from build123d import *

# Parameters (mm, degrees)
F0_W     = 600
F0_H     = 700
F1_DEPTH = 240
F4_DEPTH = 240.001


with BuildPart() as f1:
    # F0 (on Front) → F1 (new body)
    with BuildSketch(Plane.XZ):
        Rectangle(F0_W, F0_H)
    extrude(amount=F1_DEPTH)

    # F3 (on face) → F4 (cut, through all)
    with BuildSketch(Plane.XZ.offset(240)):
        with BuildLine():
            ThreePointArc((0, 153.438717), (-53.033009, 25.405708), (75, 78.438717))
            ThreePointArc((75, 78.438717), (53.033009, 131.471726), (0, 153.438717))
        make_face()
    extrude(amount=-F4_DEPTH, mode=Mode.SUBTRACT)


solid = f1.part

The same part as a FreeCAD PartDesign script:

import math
import FreeCAD as App
import Part
import Sketcher
from FreeCAD import Vector

doc = App.newDocument("Part")
params = doc.addObject("Spreadsheet::Sheet", "Params")
for row, (alias, value) in enumerate([
    ("sketch1_width", "600 mm"),
    ("sketch1_height", "700 mm"),
    ("pad1_length", "240 mm"),
    ("sketch2_radius", "75 mm"),
], start=1):
    params.set(f"A{row}", alias)
    params.set(f"B{row}", "=" + value)
    params.setAlias(f"B{row}", alias)

body = doc.addObject("PartDesign::Body", "Body")

# Sketch on XZ plane
sketch1 = body.newObject("Sketcher::SketchObject", "Sketch")
sketch1.AttachmentSupport = (doc.getObject("XZ_Plane"), [""])
sketch1.MapMode = "FlatFace"
sketch1.addGeometry(Part.LineSegment(Vector(-300, 350, 0), Vector(-300, -350, 0)), False)
sketch1.addGeometry(Part.LineSegment(Vector(-300, -350, 0), Vector(300, -350, 0)), False)
sketch1.addGeometry(Part.LineSegment(Vector(300, -350, 0), Vector(300, 350, 0)), False)
sketch1.addGeometry(Part.LineSegment(Vector(300, 350, 0), Vector(-300, 350, 0)), False)
sketch1.addConstraint(Sketcher.Constraint("Coincident", 0, 2, 1, 1))
sketch1.addConstraint(Sketcher.Constraint("Coincident", 1, 2, 2, 1))
sketch1.addConstraint(Sketcher.Constraint("Coincident", 2, 2, 3, 1))
sketch1.addConstraint(Sketcher.Constraint("Coincident", 3, 2, 0, 1))
sketch1.addConstraint(Sketcher.Constraint("Vertical", 0))
sketch1.addConstraint(Sketcher.Constraint("Horizontal", 1))
sketch1.addConstraint(Sketcher.Constraint("Vertical", 2))
sketch1.addConstraint(Sketcher.Constraint("Horizontal", 3))
sketch1.addConstraint(Sketcher.Constraint("Symmetric", 0, 2, 2, 2, -1, 1))
sketch1.addConstraint(Sketcher.Constraint("DistanceX", 1, 1, 1, 2, 600.0))
sketch1.addConstraint(Sketcher.Constraint("DistanceY", 0, 2, 0, 1, 700.0))
sketch1.setExpression("Constraints[9]", "Params.sketch1_width")
sketch1.setExpression("Constraints[10]", "Params.sketch1_height")
pad1 = body.newObject("PartDesign::Pad", "Pad")
pad1.Profile = sketch1
pad1.setExpression("Length", "Params.pad1_length")

# Sketch on XZ plane
sketch2 = body.newObject("Sketcher::SketchObject", "Sketch001")
sketch2.AttachmentSupport = (doc.getObject("XZ_Plane"), [""])
sketch2.MapMode = "FlatFace"
sketch2.AttachmentOffset = App.Placement(Vector(0, 0, 240), App.Rotation())
sketch2.addGeometry(Part.ArcOfCircle(Part.Circle(Vector(0, 78, 0), Vector(0, 0, 1), 75), math.radians(90), math.radians(360)), False)
sketch2.addGeometry(Part.ArcOfCircle(Part.Circle(Vector(0, 78, 0), Vector(0, 0, 1), 75), math.radians(0), math.radians(90)), False)
sketch2.addConstraint(Sketcher.Constraint("Tangent", 0, 1, 1, 2))
sketch2.addConstraint(Sketcher.Constraint("Coincident", 1, 1, 0, 2))
sketch2.addConstraint(Sketcher.Constraint("PointOnObject", 0, 3, -2))
sketch2.addConstraint(Sketcher.Constraint("PointOnObject", 0, 1, -2))
sketch2.addConstraint(Sketcher.Constraint("Horizontal", 0, 3, 1, 1))
sketch2.addConstraint(Sketcher.Constraint("Radius", 0, 75.0))
sketch2.addConstraint(Sketcher.Constraint("DistanceY", -1, 1, 1, 3, 78.438718))
sketch2.setExpression("Constraints[5]", "Params.sketch2_radius")
pocket1 = body.newObject("PartDesign::Pocket", "Pocket")
pocket1.Profile = sketch2
pocket1.Type = "ThroughAll"

doc.recompute()
